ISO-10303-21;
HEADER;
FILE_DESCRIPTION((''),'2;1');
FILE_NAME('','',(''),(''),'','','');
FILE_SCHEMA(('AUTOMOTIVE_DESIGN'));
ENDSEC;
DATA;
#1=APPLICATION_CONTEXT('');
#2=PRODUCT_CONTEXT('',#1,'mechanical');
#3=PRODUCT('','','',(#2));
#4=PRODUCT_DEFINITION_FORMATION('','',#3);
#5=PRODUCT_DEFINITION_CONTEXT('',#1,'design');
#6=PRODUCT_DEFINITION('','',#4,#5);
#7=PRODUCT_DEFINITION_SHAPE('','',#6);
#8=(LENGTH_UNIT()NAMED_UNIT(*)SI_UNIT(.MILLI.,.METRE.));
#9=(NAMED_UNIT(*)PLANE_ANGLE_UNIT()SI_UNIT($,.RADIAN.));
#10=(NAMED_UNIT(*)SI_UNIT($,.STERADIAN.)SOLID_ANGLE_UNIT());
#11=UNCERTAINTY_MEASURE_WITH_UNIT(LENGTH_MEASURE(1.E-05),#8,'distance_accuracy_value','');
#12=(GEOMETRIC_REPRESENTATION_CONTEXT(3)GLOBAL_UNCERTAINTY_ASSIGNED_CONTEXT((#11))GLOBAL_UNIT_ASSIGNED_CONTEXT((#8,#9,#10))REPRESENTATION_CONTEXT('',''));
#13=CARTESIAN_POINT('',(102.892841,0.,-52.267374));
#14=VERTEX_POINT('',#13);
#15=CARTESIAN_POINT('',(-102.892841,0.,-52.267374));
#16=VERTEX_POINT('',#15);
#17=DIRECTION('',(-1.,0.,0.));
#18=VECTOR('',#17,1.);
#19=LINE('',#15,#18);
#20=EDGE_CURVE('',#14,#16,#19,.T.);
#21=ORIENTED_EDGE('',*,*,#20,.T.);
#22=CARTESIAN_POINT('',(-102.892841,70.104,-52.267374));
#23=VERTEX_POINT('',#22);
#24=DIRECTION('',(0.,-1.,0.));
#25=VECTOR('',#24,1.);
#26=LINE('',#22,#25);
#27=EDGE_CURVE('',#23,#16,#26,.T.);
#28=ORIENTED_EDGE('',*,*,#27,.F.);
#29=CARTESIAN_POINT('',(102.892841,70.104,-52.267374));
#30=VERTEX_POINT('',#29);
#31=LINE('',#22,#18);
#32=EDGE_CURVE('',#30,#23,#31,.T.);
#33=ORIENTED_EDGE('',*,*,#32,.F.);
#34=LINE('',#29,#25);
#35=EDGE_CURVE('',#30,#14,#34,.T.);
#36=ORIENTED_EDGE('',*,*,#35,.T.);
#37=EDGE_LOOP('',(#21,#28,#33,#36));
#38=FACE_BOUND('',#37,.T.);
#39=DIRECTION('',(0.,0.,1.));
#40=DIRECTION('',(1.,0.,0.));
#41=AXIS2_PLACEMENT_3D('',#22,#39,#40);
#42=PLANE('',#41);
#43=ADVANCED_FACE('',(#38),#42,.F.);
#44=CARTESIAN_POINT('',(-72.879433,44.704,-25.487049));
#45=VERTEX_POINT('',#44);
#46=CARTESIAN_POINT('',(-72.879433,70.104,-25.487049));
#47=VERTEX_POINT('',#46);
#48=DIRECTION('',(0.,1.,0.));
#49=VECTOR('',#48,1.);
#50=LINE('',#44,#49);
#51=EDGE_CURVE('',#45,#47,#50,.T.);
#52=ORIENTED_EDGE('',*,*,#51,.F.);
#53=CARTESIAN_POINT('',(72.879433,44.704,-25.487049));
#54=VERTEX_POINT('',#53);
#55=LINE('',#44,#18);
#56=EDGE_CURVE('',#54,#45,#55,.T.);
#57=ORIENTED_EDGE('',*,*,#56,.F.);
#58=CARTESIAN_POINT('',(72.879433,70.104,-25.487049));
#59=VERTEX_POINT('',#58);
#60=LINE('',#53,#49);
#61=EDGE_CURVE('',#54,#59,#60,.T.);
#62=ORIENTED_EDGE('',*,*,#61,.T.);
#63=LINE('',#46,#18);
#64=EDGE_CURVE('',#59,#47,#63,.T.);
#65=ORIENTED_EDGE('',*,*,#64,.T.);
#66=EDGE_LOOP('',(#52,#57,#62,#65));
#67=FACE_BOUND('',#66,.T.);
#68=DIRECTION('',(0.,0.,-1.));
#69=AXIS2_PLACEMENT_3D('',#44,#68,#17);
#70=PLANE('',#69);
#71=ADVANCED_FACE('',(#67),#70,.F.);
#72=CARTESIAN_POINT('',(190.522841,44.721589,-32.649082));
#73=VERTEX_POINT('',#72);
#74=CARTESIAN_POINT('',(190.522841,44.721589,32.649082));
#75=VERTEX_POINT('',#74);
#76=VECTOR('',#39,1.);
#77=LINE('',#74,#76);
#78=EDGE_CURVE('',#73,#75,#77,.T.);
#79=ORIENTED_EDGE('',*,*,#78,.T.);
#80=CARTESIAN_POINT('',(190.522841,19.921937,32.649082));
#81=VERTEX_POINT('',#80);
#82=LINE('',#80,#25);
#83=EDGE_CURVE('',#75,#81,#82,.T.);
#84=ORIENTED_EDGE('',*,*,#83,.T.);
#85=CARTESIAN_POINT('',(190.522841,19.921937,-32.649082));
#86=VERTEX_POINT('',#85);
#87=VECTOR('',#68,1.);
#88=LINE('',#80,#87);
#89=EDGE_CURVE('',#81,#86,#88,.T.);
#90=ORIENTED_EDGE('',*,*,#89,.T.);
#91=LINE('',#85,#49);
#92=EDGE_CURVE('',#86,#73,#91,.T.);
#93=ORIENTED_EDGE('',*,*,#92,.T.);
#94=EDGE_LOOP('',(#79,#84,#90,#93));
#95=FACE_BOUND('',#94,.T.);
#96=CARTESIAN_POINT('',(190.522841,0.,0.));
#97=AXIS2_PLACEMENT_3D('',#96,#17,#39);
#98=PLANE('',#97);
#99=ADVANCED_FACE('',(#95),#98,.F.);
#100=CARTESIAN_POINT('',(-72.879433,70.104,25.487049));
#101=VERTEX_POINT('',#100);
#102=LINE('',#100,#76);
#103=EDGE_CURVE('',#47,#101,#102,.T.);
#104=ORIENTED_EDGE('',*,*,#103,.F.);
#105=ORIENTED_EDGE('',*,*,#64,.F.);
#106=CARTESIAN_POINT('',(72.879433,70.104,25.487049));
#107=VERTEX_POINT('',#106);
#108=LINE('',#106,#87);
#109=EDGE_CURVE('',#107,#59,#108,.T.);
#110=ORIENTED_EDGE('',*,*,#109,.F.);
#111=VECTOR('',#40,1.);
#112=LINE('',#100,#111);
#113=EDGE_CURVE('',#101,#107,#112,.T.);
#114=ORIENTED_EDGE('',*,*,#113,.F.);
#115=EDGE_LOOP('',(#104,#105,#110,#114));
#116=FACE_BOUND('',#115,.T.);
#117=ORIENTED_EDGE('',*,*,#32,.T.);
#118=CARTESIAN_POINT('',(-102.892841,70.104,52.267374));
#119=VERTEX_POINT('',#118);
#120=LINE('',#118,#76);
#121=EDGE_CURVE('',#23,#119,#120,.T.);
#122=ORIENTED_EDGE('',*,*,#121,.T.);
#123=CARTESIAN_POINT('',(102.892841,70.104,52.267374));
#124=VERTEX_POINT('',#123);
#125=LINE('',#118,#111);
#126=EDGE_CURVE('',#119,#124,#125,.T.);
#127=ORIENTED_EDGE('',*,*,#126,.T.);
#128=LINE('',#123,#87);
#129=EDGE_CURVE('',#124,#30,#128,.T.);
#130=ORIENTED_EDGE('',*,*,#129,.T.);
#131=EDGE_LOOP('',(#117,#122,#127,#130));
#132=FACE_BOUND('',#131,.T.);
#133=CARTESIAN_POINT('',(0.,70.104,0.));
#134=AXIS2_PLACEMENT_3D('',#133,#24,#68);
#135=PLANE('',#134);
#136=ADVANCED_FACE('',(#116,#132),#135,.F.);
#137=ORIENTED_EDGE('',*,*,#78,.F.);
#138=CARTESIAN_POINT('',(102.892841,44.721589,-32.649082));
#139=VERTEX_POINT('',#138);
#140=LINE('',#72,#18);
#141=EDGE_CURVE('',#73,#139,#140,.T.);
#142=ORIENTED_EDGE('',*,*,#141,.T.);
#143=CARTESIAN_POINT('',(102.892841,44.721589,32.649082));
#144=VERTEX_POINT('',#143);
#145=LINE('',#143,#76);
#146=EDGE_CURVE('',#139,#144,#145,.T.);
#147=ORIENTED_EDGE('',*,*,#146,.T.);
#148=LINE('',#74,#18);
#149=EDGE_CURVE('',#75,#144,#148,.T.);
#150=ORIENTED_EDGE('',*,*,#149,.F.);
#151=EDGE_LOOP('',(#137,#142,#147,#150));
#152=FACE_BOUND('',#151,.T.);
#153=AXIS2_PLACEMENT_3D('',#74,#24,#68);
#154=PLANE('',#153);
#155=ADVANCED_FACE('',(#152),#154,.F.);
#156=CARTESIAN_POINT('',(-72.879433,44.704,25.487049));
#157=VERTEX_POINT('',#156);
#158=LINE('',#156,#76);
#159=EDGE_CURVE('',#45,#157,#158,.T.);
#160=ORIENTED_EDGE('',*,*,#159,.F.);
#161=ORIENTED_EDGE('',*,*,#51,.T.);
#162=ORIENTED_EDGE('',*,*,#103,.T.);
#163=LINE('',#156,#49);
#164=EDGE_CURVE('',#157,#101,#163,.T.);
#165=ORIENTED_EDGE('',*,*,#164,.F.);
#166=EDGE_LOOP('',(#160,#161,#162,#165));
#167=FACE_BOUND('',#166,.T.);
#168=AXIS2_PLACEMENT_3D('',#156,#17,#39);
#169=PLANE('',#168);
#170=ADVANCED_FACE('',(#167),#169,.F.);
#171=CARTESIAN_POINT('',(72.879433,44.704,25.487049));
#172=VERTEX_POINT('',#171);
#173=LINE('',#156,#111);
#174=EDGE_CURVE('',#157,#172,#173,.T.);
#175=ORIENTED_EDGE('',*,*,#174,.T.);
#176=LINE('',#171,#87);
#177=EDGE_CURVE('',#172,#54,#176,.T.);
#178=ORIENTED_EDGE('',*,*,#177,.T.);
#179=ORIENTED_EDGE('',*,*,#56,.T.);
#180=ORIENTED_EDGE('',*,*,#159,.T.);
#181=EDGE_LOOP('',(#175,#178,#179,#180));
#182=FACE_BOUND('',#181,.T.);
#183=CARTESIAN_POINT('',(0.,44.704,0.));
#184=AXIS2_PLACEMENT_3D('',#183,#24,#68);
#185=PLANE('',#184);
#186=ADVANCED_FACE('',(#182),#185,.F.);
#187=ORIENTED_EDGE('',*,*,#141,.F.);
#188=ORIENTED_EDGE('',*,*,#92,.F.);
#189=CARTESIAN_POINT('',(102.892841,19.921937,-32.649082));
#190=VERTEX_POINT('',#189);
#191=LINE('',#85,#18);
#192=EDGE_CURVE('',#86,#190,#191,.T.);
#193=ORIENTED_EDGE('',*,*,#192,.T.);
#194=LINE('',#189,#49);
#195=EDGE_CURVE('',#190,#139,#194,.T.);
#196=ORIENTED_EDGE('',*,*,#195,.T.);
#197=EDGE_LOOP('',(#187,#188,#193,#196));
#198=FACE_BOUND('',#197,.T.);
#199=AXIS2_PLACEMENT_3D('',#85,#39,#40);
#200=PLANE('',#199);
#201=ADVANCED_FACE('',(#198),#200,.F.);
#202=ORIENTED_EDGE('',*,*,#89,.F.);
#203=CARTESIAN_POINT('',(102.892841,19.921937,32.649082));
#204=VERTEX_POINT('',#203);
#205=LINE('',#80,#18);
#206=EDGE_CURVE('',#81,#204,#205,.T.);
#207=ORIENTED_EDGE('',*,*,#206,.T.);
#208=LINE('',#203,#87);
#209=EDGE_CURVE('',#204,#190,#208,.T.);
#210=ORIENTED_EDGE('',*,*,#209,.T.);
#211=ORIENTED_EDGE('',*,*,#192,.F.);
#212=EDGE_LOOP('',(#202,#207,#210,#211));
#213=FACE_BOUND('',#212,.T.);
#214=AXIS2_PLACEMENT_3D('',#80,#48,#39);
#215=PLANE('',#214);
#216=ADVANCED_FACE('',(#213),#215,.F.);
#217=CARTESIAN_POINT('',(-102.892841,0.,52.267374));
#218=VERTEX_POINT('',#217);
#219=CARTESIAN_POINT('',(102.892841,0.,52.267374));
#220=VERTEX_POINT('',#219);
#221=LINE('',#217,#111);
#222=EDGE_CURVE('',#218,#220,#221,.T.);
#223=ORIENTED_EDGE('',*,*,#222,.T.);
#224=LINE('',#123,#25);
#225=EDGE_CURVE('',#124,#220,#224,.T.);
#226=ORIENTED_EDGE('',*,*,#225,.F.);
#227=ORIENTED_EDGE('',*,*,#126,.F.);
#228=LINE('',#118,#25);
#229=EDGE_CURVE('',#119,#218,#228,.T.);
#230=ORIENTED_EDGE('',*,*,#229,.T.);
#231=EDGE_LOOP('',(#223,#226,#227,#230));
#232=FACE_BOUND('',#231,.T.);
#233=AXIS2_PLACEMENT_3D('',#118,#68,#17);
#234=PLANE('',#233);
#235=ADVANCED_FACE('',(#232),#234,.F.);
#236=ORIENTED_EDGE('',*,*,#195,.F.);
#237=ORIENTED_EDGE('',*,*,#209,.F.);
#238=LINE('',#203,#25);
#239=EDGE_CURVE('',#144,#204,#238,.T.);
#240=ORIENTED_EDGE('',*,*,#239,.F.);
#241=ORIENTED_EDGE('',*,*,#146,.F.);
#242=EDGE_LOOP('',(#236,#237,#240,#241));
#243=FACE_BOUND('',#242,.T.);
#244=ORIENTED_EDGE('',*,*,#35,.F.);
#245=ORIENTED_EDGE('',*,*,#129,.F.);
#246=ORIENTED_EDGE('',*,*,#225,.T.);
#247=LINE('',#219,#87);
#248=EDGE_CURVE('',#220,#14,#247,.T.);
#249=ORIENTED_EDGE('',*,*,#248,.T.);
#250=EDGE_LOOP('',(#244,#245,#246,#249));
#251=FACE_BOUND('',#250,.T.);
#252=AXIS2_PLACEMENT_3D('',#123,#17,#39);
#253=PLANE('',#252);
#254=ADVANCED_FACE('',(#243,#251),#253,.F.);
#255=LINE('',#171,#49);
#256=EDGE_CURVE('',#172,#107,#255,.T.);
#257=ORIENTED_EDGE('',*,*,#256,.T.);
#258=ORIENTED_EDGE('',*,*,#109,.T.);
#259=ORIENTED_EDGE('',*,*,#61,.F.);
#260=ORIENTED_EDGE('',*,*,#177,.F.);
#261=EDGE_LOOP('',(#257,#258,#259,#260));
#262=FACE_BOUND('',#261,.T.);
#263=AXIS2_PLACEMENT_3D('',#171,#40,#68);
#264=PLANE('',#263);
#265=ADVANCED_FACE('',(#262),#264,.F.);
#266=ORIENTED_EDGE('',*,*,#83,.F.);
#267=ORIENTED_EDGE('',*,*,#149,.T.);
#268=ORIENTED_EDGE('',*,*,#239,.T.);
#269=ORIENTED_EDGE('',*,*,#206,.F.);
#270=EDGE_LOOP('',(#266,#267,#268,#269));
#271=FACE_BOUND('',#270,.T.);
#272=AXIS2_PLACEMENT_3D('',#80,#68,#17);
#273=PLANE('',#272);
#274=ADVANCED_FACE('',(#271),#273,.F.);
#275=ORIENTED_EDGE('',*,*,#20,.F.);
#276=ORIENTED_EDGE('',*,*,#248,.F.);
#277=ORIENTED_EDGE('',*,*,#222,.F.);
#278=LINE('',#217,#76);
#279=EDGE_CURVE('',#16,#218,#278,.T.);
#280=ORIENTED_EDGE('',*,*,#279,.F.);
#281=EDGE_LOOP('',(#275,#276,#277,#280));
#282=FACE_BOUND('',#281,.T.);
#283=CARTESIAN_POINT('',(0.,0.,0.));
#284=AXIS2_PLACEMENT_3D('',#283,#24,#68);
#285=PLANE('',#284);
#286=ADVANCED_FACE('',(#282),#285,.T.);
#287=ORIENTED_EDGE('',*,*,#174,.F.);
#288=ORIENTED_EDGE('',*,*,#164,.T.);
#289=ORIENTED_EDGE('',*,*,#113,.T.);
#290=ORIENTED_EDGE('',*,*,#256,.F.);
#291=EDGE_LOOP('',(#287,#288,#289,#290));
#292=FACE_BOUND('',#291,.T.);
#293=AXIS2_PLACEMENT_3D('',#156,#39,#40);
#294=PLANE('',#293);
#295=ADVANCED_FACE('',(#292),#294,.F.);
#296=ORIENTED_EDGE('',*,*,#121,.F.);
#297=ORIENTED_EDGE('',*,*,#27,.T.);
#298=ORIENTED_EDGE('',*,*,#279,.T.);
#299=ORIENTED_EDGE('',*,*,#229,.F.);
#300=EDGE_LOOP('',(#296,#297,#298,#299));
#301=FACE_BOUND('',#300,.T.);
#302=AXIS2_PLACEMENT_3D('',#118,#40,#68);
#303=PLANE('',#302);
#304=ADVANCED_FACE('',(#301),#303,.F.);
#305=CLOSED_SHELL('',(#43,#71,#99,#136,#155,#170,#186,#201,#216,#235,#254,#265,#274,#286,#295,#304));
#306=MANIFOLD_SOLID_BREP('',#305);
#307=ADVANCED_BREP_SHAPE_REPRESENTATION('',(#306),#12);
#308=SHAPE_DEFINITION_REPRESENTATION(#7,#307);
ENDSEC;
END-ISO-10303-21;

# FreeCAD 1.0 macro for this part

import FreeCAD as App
import Part
import Sketcher

V = App.Vector
Q = App.Units.Quantity


def add_polygon(sketch, points):
    """Adds a closed chain of lines whose ends are joined by coincident constraints."""
    first, n = sketch.GeometryCount, len(points)
    for a, b in zip(points, points[1:] + points[:1]):
        sketch.addGeometry(Part.LineSegment(App.Vector(*a, 0), App.Vector(*b, 0)), False)
    for i in range(n):
        sketch.addConstraint(Sketcher.Constraint("Coincident", first + i, 2, first + (i + 1) % n, 1))

doc = App.newDocument("Part")
body = doc.addObject("PartDesign::Body", "Body")

sketch1 = body.newObject("Sketcher::SketchObject", "Sketch")
sketch1.AttachmentSupport = (doc.getObject("XZ_Plane"), [""])
sketch1.MapMode = "FlatFace"
add_polygon(sketch1, [(-103, -52), (-103, 52), (103, 52), (103, -52)])
sketch1.addConstraint([
    Sketcher.Constraint("Vertical", 0),
    Sketcher.Constraint("Horizontal", 1),
    Sketcher.Constraint("Vertical", 2),
    Sketcher.Constraint("Horizontal", 3),
    Sketcher.Constraint("Symmetric", 0, 2, 2, 2, -1, 1),
    Sketcher.Constraint("DistanceY", 0, 1, 0, 2, Q("104.534748 mm")),
    Sketcher.Constraint("DistanceX", 1, 1, 1, 2, Q("205.785683 mm")),
])
pad1 = body.newObject("PartDesign::Pad", "Pad")
pad1.Profile = sketch1
pad1.Length = Q("2.76 in")
pad1.Reversed = True

sketch2 = body.newObject("Sketcher::SketchObject", "Sketch001")
sketch2.AttachmentSupport = (doc.getObject("XZ_Plane"), [""])
sketch2.MapMode = "FlatFace"
sketch2.AttachmentOffset = App.Placement(V(0, 0, -2.76 * 25.4), App.Rotation())
add_polygon(sketch2, [(-73, -25), (-73, 25), (73, 25), (73, -25)])
sketch2.addConstraint([
    Sketcher.Constraint("Vertical", 0),
    Sketcher.Constraint("Horizontal", 1),
    Sketcher.Constraint("Vertical", 2),
    Sketcher.Constraint("Horizontal", 3),
    Sketcher.Constraint("Symmetric", 0, 2, 2, 2, -1, 1),
    Sketcher.Constraint("DistanceX", 1, 1, 1, 2, Q("145.758866 mm")),
    Sketcher.Constraint("DistanceY", 0, 1, 0, 2, Q("50.974098 mm")),
])
pocket1 = body.newObject("PartDesign::Pocket", "Pocket")
pocket1.Profile = sketch2
pocket1.Length = Q("1 in")
pocket1.Reversed = True

sketch3 = body.newObject("Sketcher::SketchObject", "Sketch002")
sketch3.AttachmentSupport = (doc.getObject("YZ_Plane"), [""])
sketch3.MapMode = "FlatFace"
sketch3.AttachmentOffset = App.Placement(V(0, 0, 102.892841), App.Rotation())
add_polygon(sketch3, [(45, 33), (20, 33), (20, -33), (45, -33)])
sketch3.addConstraint([
    Sketcher.Constraint("Horizontal", 0),
    Sketcher.Constraint("Vertical", 1),
    Sketcher.Constraint("Horizontal", 2),
    Sketcher.Constraint("Vertical", 3),
    Sketcher.Constraint("DistanceX", 0, 2, 0, 1, Q("24.799651 mm")),
    Sketcher.Constraint("DistanceY", 1, 2, 1, 1, Q("65.298165 mm")),
    Sketcher.Constraint("DistanceX", -1, 1, 2, 2, Q("44.721589 mm")),
    Sketcher.Constraint("DistanceY", -1, 1, 0, 2, Q("32.649082 mm")),
])
pad2 = body.newObject("PartDesign::Pad", "Pad001")
pad2.Profile = sketch3
pad2.Length = Q("3.45 in")

doc.recompute()
